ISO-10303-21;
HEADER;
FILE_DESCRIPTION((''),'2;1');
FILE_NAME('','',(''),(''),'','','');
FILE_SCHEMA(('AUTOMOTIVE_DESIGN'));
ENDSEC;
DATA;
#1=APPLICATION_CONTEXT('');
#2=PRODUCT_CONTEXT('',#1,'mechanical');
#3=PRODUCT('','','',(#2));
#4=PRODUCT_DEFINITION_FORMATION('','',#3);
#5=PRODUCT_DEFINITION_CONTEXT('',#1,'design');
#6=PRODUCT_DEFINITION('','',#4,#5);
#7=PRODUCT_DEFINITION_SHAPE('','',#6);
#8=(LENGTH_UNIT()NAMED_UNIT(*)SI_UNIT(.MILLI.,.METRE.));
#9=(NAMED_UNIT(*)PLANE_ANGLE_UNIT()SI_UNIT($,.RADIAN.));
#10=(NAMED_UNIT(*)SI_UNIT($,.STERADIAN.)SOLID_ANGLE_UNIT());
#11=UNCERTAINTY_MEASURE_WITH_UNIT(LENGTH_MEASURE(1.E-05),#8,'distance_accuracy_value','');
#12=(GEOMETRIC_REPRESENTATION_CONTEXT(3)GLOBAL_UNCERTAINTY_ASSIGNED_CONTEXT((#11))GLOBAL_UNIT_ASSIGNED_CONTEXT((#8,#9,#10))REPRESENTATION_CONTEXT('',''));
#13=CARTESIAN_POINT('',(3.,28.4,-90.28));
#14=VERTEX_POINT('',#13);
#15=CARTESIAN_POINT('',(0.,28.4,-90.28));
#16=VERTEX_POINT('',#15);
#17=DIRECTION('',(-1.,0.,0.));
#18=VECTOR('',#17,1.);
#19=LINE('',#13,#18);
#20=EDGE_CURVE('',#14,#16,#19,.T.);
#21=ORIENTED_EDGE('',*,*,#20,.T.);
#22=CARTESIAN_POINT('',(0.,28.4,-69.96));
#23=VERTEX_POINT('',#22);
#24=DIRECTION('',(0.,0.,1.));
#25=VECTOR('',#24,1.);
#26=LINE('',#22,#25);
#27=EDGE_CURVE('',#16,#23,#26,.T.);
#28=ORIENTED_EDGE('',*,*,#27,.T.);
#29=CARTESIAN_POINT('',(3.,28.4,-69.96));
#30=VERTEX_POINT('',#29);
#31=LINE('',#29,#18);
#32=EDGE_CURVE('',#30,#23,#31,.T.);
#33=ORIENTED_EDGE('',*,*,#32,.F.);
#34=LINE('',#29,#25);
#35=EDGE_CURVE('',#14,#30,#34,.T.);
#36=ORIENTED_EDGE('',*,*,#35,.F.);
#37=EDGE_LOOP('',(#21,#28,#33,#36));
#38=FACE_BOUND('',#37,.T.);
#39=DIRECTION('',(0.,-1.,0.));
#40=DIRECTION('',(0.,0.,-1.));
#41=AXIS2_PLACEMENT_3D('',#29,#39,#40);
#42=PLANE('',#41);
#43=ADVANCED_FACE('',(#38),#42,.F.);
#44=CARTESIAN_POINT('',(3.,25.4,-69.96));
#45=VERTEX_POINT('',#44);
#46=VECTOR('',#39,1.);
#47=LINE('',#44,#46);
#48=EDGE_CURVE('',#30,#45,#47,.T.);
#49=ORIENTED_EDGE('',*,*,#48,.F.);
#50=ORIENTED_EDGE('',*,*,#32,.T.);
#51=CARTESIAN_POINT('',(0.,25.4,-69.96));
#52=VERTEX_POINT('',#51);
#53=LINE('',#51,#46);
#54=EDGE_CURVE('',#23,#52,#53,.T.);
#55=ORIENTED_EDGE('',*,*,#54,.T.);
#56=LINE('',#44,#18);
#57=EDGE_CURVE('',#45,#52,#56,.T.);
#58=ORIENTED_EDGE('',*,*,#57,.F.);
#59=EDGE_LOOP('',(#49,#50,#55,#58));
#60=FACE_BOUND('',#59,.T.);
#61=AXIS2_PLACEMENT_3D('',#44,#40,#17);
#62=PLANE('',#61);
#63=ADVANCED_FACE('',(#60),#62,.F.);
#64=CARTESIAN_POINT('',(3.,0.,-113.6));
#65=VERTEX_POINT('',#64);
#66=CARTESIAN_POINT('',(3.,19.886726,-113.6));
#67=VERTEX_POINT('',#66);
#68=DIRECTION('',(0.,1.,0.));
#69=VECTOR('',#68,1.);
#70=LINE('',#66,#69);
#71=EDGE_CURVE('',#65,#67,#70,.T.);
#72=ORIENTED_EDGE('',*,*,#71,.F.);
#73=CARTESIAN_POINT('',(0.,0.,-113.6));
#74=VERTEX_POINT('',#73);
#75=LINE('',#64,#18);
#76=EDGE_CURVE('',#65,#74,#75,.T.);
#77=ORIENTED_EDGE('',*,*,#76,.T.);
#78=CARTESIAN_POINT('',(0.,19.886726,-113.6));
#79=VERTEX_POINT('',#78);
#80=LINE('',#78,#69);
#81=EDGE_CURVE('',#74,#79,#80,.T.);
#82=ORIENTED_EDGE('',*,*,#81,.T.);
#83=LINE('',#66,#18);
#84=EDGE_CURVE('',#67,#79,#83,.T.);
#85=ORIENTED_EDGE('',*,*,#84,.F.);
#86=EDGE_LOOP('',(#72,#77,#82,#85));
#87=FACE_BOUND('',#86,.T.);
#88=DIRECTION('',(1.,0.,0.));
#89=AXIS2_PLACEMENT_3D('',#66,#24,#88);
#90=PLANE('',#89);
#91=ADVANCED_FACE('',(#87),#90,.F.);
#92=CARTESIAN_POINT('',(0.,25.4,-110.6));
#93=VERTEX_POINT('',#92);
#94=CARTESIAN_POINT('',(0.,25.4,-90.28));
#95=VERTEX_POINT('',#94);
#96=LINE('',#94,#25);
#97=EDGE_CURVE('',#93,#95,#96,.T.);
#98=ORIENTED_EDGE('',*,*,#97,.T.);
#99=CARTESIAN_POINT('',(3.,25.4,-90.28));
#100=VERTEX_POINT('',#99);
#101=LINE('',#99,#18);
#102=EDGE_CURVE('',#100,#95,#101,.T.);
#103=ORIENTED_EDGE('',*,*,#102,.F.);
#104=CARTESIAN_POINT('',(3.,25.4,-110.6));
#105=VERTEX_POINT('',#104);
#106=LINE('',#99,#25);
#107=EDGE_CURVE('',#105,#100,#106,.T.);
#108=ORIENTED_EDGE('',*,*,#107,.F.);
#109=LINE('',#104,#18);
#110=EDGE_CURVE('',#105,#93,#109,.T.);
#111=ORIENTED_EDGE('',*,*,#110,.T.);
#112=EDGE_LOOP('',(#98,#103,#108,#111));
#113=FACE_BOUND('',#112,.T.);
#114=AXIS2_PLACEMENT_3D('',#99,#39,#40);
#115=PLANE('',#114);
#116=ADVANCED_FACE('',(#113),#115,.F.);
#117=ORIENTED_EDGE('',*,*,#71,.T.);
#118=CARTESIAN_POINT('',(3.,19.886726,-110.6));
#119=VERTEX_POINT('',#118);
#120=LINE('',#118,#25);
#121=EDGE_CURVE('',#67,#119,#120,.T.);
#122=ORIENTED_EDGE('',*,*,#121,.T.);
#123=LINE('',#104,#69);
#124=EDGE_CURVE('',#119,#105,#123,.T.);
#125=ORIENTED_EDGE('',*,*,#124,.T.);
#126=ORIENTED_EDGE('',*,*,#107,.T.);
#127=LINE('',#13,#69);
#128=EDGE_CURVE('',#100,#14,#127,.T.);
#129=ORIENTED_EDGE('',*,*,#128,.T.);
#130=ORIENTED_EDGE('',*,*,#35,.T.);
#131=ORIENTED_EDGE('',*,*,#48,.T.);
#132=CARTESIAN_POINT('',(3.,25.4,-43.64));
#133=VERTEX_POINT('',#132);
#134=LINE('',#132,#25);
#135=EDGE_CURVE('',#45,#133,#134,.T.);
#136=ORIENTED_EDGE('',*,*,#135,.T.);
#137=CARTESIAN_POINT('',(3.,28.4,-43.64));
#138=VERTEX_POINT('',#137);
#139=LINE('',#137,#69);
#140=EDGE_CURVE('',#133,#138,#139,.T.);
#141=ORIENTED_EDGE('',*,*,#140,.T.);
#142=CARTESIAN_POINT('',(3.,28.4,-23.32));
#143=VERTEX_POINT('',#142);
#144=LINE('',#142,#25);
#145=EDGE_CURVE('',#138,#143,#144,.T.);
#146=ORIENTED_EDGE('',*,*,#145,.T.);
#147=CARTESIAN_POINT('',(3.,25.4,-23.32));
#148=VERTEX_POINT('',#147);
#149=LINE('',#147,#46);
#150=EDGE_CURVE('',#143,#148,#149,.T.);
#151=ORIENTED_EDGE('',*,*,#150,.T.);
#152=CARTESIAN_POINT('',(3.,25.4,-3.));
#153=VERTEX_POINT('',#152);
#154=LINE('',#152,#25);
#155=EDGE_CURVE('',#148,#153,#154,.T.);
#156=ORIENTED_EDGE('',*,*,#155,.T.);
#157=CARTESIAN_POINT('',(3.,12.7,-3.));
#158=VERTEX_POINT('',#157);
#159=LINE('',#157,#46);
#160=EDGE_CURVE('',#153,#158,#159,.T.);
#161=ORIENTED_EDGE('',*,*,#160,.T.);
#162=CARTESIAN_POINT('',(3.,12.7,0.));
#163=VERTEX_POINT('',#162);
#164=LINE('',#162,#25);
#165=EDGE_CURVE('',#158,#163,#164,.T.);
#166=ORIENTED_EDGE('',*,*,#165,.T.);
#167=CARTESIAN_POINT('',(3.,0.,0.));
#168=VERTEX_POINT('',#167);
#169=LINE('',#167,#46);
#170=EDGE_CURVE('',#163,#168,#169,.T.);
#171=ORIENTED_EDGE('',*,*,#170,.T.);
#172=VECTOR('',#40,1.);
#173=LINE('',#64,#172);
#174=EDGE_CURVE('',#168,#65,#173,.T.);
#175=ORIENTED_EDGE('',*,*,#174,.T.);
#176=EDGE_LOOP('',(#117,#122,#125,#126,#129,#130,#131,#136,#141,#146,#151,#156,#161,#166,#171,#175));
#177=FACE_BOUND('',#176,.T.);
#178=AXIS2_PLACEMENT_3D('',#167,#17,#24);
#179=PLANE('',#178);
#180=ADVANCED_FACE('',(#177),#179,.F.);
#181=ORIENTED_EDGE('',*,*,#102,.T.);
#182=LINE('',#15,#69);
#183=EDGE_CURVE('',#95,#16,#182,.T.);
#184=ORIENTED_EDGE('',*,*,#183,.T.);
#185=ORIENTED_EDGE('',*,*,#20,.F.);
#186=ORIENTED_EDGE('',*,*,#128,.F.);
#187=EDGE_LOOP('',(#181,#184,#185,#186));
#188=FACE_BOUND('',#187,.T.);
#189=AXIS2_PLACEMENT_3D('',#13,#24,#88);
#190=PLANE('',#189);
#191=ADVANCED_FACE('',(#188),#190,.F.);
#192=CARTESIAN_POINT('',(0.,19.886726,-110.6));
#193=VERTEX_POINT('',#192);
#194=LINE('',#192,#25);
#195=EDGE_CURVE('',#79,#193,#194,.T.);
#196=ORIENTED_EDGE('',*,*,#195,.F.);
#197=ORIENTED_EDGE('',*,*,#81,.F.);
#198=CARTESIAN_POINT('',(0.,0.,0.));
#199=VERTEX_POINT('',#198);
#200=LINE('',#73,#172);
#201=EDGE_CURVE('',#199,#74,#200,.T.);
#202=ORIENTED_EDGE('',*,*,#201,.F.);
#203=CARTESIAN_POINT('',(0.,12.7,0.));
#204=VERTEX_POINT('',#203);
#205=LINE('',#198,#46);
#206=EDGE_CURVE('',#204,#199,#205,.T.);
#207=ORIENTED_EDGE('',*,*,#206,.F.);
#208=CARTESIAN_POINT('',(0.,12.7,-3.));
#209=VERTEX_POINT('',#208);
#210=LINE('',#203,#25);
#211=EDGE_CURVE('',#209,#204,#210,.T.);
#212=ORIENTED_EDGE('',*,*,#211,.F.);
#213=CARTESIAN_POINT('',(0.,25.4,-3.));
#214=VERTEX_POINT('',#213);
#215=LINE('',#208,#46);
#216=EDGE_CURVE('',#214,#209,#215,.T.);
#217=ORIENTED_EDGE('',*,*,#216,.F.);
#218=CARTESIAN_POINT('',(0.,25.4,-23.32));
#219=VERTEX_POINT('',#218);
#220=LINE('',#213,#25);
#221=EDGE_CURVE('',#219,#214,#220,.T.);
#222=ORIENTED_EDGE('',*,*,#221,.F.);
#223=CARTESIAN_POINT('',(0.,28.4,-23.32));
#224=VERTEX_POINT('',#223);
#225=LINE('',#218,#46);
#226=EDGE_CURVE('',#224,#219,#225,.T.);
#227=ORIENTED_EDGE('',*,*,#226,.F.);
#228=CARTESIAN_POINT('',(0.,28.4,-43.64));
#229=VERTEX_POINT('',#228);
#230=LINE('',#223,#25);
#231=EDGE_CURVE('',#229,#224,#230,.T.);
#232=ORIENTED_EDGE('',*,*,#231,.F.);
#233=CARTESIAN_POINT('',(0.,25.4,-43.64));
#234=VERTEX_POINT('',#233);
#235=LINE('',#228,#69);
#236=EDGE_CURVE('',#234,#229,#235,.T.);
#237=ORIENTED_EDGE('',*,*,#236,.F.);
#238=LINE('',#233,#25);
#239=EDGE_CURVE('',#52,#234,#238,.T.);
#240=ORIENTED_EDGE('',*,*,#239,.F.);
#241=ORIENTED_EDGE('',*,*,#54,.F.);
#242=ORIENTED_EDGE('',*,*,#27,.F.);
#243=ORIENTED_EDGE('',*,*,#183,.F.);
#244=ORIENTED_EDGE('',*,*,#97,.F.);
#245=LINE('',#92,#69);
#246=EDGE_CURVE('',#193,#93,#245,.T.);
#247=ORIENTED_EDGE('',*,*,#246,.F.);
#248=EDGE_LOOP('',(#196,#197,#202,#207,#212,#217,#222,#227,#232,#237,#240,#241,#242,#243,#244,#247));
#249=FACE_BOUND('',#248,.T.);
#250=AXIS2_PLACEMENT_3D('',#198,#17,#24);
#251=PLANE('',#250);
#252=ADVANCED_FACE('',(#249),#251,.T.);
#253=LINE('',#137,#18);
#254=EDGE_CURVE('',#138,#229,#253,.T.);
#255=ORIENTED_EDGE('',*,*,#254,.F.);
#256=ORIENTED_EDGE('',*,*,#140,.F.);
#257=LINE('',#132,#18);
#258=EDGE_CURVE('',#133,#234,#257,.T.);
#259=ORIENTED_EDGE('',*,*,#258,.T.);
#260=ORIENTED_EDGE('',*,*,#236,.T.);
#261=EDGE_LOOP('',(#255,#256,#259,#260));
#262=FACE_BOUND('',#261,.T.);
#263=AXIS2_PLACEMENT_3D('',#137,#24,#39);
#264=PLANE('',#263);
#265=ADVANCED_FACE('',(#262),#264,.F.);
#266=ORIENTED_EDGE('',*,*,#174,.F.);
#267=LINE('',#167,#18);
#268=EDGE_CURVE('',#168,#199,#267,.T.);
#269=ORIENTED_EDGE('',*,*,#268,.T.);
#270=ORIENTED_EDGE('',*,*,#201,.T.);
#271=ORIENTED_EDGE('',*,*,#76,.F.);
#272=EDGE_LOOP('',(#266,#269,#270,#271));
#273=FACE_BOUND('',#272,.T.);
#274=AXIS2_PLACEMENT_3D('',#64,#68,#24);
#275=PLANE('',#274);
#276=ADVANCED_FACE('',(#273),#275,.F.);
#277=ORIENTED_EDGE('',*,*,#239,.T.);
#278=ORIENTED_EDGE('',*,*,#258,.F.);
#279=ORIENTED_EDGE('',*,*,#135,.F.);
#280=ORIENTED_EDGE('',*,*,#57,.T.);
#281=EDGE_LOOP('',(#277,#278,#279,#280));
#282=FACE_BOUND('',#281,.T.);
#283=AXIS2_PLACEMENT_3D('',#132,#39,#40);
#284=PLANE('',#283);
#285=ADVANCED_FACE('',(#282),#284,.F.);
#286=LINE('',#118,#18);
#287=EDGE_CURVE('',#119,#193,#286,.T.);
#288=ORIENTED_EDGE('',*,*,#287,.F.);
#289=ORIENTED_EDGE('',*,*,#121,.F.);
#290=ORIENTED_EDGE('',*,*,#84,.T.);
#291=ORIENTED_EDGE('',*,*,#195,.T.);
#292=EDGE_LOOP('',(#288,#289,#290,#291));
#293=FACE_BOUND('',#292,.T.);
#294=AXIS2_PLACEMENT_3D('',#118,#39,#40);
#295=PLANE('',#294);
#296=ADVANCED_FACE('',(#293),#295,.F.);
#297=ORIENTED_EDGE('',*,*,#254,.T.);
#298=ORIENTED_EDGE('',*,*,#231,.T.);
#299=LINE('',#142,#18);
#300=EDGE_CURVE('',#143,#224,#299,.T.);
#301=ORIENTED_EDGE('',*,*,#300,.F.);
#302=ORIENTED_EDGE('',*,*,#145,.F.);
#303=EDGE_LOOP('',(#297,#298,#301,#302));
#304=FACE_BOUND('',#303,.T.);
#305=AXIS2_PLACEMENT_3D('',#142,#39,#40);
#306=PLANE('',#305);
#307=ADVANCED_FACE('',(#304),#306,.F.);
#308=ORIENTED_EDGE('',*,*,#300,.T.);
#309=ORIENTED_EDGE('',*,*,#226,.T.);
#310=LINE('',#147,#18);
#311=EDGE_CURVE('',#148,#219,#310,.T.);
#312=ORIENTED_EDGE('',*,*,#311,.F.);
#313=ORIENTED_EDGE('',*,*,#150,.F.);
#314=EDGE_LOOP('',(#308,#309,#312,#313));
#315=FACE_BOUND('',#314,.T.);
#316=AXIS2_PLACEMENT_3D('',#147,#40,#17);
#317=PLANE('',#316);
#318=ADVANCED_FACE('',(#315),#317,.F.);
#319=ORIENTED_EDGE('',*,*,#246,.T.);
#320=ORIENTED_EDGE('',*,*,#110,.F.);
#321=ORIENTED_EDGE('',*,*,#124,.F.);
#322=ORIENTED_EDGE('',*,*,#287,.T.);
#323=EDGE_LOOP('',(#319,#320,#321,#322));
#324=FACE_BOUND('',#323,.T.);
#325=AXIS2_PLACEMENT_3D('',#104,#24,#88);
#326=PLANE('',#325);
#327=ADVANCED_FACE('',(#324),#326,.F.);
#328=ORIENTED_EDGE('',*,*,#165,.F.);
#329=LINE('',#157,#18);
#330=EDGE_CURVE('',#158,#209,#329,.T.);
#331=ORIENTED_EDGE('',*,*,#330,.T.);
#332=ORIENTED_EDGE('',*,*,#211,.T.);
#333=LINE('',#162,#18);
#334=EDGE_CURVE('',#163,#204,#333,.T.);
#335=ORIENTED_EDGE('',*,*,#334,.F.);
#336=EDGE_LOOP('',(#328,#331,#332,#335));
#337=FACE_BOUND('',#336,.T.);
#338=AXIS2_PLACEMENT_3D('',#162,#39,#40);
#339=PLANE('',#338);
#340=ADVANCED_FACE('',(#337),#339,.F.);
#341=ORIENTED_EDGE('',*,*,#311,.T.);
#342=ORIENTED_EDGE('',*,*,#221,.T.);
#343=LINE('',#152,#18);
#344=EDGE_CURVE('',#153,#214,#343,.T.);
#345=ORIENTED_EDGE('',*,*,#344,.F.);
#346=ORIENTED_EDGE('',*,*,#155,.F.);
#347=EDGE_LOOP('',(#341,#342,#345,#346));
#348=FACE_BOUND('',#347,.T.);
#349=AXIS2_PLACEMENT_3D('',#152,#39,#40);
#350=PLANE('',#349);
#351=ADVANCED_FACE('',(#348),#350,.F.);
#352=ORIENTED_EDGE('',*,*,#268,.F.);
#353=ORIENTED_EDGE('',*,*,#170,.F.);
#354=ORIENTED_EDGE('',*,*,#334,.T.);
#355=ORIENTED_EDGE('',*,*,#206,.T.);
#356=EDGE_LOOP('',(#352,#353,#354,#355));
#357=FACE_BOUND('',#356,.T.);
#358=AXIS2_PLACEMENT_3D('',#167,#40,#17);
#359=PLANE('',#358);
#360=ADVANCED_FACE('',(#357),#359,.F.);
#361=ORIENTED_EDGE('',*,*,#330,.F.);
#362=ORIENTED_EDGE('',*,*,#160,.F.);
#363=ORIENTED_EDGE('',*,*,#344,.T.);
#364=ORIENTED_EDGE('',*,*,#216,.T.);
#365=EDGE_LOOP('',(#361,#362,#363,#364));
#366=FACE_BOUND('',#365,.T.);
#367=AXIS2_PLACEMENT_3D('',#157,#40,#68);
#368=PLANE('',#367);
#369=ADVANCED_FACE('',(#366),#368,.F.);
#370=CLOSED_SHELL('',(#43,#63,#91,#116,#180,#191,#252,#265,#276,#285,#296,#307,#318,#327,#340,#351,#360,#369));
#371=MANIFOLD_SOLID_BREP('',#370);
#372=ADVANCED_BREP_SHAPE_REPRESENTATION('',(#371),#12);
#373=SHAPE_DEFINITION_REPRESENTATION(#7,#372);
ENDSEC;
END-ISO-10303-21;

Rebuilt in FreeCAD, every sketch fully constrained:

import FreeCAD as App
import Part
import Sketcher

doc = App.newDocument("Part")
body = doc.addObject("PartDesign::Body", "Body")

# Sketch on YZ plane
sketch1 = body.newObject("Sketcher::SketchObject", "Sketch")
sketch1.AttachmentSupport = (doc.getObject("YZ_Plane"), [""])
sketch1.MapMode = "FlatFace"
sketch1.addGeometry(Part.LineSegment(App.Vector(12.7, 0, 0), App.Vector(0, 0, 0)), False)
sketch1.addGeometry(Part.LineSegment(App.Vector(0, 0, 0), App.Vector(0, -113.6, 0)), False)
sketch1.addGeometry(Part.LineSegment(App.Vector(0, -113.6, 0), App.Vector(19.886726, -113.6, 0)), False)
sketch1.addGeometry(Part.LineSegment(App.Vector(19.886726, -113.6, 0), App.Vector(19.886726, -110.6, 0)), False)
sketch1.addGeometry(Part.LineSegment(App.Vector(19.886726, -110.6, 0), App.Vector(25.4, -110.6, 0)), False)
sketch1.addGeometry(Part.LineSegment(App.Vector(25.4, -110.6, 0), App.Vector(25.4, -90.28, 0)), False)
sketch1.addGeometry(Part.LineSegment(App.Vector(25.4, -90.28, 0), App.Vector(28.4, -90.28, 0)), False)
sketch1.addGeometry(Part.LineSegment(App.Vector(28.4, -90.28, 0), App.Vector(28.4, -69.96, 0)), False)
sketch1.addGeometry(Part.LineSegment(App.Vector(28.4, -69.96, 0), App.Vector(25.4, -69.96, 0)), False)
sketch1.addGeometry(Part.LineSegment(App.Vector(25.4, -69.96, 0), App.Vector(25.4, -43.64, 0)), False)
sketch1.addGeometry(Part.LineSegment(App.Vector(25.4, -43.64, 0), App.Vector(28.4, -43.64, 0)), False)
sketch1.addGeometry(Part.LineSegment(App.Vector(28.4, -43.64, 0), App.Vector(28.4, -23.32, 0)), False)
sketch1.addGeometry(Part.LineSegment(App.Vector(28.4, -23.32, 0), App.Vector(25.4, -23.32, 0)), False)
sketch1.addGeometry(Part.LineSegment(App.Vector(25.4, -23.32, 0), App.Vector(25.4, -3, 0)), False)
sketch1.addGeometry(Part.LineSegment(App.Vector(25.4, -3, 0), App.Vector(12.7, -3, 0)), False)
sketch1.addGeometry(Part.LineSegment(App.Vector(12.7, -3, 0), App.Vector(12.7, 0, 0)), False)
sketch1.addConstraint(Sketcher.Constraint("Coincident", 0, 2, 1, 1))
sketch1.addConstraint(Sketcher.Constraint("Coincident", 1, 2, 2, 1))
sketch1.addConstraint(Sketcher.Constraint("Coincident", 2, 2, 3, 1))
sketch1.addConstraint(Sketcher.Constraint("Coincident", 3, 2, 4, 1))
sketch1.addConstraint(Sketcher.Constraint("Coincident", 4, 2, 5, 1))
sketch1.addConstraint(Sketcher.Constraint("Coincident", 5, 2, 6, 1))
sketch1.addConstraint(Sketcher.Constraint("Coincident", 6, 2, 7, 1))
sketch1.addConstraint(Sketcher.Constraint("Coincident", 7, 2, 8, 1))
sketch1.addConstraint(Sketcher.Constraint("Coincident", 8, 2, 9, 1))
sketch1.addConstraint(Sketcher.Constraint("Coincident", 9, 2, 10, 1))
sketch1.addConstraint(Sketcher.Constraint("Coincident", 10, 2, 11, 1))
sketch1.addConstraint(Sketcher.Constraint("Coincident", 11, 2, 12, 1))
sketch1.addConstraint(Sketcher.Constraint("Coincident", 12, 2, 13, 1))
sketch1.addConstraint(Sketcher.Constraint("Coincident", 13, 2, 14, 1))
sketch1.addConstraint(Sketcher.Constraint("Coincident", 14, 2, 15, 1))
sketch1.addConstraint(Sketcher.Constraint("Coincident", 15, 2, 0, 1))
sketch1.addConstraint(Sketcher.Constraint("Horizontal", 0))
sketch1.addConstraint(Sketcher.Constraint("Vertical", 1))
sketch1.addConstraint(Sketcher.Constraint("Horizontal", 2))
sketch1.addConstraint(Sketcher.Constraint("Vertical", 3))
sketch1.addConstraint(Sketcher.Constraint("Horizontal", 4))
sketch1.addConstraint(Sketcher.Constraint("Vertical", 5))
sketch1.addConstraint(Sketcher.Constraint("Horizontal", 6))
sketch1.addConstraint(Sketcher.Constraint("Vertical", 7))
sketch1.addConstraint(Sketcher.Constraint("Horizontal", 8))
sketch1.addConstraint(Sketcher.Constraint("Vertical", 9))
sketch1.addConstraint(Sketcher.Constraint("Horizontal", 10))
sketch1.addConstraint(Sketcher.Constraint("Vertical", 11))
sketch1.addConstraint(Sketcher.Constraint("Horizontal", 12))
sketch1.addConstraint(Sketcher.Constraint("Vertical", 13))
sketch1.addConstraint(Sketcher.Constraint("Horizontal", 14))
sketch1.addConstraint(Sketcher.Constraint("Vertical", 15))
sketch1.addConstraint(Sketcher.Constraint("Coincident", 0, 2, -1, 1))
sketch1.addConstraint(Sketcher.Constraint("Vertical", 5, 2, 8, 2))
sketch1.addConstraint(Sketcher.Constraint("Vertical", 7, 2, 10, 2))
sketch1.addConstraint(Sketcher.Constraint("Vertical", 9, 2, 12, 2))
sketch1.addConstraint(Sketcher.Constraint("Equal", 0, 14))
sketch1.addConstraint(Sketcher.Constraint("Equal", 12, 3))
sketch1.addConstraint(Sketcher.Constraint("Equal", 5, 7))
sketch1.addConstraint(Sketcher.Constraint("Equal", 7, 11))
sketch1.addConstraint(Sketcher.Constraint("Equal", 11, 13))
sketch1.addConstraint(Sketcher.Constraint("Equal", 3, 15))
sketch1.addConstraint(Sketcher.Constraint("DistanceX", 6, 1, 6, 2, 3.0))
sketch1.addConstraint(Sketcher.Constraint("DistanceX", 0, 2, 0, 1, 12.7))
sketch1.addConstraint(Sketcher.Constraint("DistanceY", 1, 2, 1, 1, 113.6))
sketch1.addConstraint(Sketcher.Constraint("DistanceY", 5, 1, 5, 2, 20.32))
sketch1.addConstraint(Sketcher.Constraint("DistanceX", 2, 1, 2, 2, 19.886726))
pad1 = body.newObject("PartDesign::Pad", "Pad")
pad1.Profile = sketch1
pad1.Length = 3

doc.recompute()
